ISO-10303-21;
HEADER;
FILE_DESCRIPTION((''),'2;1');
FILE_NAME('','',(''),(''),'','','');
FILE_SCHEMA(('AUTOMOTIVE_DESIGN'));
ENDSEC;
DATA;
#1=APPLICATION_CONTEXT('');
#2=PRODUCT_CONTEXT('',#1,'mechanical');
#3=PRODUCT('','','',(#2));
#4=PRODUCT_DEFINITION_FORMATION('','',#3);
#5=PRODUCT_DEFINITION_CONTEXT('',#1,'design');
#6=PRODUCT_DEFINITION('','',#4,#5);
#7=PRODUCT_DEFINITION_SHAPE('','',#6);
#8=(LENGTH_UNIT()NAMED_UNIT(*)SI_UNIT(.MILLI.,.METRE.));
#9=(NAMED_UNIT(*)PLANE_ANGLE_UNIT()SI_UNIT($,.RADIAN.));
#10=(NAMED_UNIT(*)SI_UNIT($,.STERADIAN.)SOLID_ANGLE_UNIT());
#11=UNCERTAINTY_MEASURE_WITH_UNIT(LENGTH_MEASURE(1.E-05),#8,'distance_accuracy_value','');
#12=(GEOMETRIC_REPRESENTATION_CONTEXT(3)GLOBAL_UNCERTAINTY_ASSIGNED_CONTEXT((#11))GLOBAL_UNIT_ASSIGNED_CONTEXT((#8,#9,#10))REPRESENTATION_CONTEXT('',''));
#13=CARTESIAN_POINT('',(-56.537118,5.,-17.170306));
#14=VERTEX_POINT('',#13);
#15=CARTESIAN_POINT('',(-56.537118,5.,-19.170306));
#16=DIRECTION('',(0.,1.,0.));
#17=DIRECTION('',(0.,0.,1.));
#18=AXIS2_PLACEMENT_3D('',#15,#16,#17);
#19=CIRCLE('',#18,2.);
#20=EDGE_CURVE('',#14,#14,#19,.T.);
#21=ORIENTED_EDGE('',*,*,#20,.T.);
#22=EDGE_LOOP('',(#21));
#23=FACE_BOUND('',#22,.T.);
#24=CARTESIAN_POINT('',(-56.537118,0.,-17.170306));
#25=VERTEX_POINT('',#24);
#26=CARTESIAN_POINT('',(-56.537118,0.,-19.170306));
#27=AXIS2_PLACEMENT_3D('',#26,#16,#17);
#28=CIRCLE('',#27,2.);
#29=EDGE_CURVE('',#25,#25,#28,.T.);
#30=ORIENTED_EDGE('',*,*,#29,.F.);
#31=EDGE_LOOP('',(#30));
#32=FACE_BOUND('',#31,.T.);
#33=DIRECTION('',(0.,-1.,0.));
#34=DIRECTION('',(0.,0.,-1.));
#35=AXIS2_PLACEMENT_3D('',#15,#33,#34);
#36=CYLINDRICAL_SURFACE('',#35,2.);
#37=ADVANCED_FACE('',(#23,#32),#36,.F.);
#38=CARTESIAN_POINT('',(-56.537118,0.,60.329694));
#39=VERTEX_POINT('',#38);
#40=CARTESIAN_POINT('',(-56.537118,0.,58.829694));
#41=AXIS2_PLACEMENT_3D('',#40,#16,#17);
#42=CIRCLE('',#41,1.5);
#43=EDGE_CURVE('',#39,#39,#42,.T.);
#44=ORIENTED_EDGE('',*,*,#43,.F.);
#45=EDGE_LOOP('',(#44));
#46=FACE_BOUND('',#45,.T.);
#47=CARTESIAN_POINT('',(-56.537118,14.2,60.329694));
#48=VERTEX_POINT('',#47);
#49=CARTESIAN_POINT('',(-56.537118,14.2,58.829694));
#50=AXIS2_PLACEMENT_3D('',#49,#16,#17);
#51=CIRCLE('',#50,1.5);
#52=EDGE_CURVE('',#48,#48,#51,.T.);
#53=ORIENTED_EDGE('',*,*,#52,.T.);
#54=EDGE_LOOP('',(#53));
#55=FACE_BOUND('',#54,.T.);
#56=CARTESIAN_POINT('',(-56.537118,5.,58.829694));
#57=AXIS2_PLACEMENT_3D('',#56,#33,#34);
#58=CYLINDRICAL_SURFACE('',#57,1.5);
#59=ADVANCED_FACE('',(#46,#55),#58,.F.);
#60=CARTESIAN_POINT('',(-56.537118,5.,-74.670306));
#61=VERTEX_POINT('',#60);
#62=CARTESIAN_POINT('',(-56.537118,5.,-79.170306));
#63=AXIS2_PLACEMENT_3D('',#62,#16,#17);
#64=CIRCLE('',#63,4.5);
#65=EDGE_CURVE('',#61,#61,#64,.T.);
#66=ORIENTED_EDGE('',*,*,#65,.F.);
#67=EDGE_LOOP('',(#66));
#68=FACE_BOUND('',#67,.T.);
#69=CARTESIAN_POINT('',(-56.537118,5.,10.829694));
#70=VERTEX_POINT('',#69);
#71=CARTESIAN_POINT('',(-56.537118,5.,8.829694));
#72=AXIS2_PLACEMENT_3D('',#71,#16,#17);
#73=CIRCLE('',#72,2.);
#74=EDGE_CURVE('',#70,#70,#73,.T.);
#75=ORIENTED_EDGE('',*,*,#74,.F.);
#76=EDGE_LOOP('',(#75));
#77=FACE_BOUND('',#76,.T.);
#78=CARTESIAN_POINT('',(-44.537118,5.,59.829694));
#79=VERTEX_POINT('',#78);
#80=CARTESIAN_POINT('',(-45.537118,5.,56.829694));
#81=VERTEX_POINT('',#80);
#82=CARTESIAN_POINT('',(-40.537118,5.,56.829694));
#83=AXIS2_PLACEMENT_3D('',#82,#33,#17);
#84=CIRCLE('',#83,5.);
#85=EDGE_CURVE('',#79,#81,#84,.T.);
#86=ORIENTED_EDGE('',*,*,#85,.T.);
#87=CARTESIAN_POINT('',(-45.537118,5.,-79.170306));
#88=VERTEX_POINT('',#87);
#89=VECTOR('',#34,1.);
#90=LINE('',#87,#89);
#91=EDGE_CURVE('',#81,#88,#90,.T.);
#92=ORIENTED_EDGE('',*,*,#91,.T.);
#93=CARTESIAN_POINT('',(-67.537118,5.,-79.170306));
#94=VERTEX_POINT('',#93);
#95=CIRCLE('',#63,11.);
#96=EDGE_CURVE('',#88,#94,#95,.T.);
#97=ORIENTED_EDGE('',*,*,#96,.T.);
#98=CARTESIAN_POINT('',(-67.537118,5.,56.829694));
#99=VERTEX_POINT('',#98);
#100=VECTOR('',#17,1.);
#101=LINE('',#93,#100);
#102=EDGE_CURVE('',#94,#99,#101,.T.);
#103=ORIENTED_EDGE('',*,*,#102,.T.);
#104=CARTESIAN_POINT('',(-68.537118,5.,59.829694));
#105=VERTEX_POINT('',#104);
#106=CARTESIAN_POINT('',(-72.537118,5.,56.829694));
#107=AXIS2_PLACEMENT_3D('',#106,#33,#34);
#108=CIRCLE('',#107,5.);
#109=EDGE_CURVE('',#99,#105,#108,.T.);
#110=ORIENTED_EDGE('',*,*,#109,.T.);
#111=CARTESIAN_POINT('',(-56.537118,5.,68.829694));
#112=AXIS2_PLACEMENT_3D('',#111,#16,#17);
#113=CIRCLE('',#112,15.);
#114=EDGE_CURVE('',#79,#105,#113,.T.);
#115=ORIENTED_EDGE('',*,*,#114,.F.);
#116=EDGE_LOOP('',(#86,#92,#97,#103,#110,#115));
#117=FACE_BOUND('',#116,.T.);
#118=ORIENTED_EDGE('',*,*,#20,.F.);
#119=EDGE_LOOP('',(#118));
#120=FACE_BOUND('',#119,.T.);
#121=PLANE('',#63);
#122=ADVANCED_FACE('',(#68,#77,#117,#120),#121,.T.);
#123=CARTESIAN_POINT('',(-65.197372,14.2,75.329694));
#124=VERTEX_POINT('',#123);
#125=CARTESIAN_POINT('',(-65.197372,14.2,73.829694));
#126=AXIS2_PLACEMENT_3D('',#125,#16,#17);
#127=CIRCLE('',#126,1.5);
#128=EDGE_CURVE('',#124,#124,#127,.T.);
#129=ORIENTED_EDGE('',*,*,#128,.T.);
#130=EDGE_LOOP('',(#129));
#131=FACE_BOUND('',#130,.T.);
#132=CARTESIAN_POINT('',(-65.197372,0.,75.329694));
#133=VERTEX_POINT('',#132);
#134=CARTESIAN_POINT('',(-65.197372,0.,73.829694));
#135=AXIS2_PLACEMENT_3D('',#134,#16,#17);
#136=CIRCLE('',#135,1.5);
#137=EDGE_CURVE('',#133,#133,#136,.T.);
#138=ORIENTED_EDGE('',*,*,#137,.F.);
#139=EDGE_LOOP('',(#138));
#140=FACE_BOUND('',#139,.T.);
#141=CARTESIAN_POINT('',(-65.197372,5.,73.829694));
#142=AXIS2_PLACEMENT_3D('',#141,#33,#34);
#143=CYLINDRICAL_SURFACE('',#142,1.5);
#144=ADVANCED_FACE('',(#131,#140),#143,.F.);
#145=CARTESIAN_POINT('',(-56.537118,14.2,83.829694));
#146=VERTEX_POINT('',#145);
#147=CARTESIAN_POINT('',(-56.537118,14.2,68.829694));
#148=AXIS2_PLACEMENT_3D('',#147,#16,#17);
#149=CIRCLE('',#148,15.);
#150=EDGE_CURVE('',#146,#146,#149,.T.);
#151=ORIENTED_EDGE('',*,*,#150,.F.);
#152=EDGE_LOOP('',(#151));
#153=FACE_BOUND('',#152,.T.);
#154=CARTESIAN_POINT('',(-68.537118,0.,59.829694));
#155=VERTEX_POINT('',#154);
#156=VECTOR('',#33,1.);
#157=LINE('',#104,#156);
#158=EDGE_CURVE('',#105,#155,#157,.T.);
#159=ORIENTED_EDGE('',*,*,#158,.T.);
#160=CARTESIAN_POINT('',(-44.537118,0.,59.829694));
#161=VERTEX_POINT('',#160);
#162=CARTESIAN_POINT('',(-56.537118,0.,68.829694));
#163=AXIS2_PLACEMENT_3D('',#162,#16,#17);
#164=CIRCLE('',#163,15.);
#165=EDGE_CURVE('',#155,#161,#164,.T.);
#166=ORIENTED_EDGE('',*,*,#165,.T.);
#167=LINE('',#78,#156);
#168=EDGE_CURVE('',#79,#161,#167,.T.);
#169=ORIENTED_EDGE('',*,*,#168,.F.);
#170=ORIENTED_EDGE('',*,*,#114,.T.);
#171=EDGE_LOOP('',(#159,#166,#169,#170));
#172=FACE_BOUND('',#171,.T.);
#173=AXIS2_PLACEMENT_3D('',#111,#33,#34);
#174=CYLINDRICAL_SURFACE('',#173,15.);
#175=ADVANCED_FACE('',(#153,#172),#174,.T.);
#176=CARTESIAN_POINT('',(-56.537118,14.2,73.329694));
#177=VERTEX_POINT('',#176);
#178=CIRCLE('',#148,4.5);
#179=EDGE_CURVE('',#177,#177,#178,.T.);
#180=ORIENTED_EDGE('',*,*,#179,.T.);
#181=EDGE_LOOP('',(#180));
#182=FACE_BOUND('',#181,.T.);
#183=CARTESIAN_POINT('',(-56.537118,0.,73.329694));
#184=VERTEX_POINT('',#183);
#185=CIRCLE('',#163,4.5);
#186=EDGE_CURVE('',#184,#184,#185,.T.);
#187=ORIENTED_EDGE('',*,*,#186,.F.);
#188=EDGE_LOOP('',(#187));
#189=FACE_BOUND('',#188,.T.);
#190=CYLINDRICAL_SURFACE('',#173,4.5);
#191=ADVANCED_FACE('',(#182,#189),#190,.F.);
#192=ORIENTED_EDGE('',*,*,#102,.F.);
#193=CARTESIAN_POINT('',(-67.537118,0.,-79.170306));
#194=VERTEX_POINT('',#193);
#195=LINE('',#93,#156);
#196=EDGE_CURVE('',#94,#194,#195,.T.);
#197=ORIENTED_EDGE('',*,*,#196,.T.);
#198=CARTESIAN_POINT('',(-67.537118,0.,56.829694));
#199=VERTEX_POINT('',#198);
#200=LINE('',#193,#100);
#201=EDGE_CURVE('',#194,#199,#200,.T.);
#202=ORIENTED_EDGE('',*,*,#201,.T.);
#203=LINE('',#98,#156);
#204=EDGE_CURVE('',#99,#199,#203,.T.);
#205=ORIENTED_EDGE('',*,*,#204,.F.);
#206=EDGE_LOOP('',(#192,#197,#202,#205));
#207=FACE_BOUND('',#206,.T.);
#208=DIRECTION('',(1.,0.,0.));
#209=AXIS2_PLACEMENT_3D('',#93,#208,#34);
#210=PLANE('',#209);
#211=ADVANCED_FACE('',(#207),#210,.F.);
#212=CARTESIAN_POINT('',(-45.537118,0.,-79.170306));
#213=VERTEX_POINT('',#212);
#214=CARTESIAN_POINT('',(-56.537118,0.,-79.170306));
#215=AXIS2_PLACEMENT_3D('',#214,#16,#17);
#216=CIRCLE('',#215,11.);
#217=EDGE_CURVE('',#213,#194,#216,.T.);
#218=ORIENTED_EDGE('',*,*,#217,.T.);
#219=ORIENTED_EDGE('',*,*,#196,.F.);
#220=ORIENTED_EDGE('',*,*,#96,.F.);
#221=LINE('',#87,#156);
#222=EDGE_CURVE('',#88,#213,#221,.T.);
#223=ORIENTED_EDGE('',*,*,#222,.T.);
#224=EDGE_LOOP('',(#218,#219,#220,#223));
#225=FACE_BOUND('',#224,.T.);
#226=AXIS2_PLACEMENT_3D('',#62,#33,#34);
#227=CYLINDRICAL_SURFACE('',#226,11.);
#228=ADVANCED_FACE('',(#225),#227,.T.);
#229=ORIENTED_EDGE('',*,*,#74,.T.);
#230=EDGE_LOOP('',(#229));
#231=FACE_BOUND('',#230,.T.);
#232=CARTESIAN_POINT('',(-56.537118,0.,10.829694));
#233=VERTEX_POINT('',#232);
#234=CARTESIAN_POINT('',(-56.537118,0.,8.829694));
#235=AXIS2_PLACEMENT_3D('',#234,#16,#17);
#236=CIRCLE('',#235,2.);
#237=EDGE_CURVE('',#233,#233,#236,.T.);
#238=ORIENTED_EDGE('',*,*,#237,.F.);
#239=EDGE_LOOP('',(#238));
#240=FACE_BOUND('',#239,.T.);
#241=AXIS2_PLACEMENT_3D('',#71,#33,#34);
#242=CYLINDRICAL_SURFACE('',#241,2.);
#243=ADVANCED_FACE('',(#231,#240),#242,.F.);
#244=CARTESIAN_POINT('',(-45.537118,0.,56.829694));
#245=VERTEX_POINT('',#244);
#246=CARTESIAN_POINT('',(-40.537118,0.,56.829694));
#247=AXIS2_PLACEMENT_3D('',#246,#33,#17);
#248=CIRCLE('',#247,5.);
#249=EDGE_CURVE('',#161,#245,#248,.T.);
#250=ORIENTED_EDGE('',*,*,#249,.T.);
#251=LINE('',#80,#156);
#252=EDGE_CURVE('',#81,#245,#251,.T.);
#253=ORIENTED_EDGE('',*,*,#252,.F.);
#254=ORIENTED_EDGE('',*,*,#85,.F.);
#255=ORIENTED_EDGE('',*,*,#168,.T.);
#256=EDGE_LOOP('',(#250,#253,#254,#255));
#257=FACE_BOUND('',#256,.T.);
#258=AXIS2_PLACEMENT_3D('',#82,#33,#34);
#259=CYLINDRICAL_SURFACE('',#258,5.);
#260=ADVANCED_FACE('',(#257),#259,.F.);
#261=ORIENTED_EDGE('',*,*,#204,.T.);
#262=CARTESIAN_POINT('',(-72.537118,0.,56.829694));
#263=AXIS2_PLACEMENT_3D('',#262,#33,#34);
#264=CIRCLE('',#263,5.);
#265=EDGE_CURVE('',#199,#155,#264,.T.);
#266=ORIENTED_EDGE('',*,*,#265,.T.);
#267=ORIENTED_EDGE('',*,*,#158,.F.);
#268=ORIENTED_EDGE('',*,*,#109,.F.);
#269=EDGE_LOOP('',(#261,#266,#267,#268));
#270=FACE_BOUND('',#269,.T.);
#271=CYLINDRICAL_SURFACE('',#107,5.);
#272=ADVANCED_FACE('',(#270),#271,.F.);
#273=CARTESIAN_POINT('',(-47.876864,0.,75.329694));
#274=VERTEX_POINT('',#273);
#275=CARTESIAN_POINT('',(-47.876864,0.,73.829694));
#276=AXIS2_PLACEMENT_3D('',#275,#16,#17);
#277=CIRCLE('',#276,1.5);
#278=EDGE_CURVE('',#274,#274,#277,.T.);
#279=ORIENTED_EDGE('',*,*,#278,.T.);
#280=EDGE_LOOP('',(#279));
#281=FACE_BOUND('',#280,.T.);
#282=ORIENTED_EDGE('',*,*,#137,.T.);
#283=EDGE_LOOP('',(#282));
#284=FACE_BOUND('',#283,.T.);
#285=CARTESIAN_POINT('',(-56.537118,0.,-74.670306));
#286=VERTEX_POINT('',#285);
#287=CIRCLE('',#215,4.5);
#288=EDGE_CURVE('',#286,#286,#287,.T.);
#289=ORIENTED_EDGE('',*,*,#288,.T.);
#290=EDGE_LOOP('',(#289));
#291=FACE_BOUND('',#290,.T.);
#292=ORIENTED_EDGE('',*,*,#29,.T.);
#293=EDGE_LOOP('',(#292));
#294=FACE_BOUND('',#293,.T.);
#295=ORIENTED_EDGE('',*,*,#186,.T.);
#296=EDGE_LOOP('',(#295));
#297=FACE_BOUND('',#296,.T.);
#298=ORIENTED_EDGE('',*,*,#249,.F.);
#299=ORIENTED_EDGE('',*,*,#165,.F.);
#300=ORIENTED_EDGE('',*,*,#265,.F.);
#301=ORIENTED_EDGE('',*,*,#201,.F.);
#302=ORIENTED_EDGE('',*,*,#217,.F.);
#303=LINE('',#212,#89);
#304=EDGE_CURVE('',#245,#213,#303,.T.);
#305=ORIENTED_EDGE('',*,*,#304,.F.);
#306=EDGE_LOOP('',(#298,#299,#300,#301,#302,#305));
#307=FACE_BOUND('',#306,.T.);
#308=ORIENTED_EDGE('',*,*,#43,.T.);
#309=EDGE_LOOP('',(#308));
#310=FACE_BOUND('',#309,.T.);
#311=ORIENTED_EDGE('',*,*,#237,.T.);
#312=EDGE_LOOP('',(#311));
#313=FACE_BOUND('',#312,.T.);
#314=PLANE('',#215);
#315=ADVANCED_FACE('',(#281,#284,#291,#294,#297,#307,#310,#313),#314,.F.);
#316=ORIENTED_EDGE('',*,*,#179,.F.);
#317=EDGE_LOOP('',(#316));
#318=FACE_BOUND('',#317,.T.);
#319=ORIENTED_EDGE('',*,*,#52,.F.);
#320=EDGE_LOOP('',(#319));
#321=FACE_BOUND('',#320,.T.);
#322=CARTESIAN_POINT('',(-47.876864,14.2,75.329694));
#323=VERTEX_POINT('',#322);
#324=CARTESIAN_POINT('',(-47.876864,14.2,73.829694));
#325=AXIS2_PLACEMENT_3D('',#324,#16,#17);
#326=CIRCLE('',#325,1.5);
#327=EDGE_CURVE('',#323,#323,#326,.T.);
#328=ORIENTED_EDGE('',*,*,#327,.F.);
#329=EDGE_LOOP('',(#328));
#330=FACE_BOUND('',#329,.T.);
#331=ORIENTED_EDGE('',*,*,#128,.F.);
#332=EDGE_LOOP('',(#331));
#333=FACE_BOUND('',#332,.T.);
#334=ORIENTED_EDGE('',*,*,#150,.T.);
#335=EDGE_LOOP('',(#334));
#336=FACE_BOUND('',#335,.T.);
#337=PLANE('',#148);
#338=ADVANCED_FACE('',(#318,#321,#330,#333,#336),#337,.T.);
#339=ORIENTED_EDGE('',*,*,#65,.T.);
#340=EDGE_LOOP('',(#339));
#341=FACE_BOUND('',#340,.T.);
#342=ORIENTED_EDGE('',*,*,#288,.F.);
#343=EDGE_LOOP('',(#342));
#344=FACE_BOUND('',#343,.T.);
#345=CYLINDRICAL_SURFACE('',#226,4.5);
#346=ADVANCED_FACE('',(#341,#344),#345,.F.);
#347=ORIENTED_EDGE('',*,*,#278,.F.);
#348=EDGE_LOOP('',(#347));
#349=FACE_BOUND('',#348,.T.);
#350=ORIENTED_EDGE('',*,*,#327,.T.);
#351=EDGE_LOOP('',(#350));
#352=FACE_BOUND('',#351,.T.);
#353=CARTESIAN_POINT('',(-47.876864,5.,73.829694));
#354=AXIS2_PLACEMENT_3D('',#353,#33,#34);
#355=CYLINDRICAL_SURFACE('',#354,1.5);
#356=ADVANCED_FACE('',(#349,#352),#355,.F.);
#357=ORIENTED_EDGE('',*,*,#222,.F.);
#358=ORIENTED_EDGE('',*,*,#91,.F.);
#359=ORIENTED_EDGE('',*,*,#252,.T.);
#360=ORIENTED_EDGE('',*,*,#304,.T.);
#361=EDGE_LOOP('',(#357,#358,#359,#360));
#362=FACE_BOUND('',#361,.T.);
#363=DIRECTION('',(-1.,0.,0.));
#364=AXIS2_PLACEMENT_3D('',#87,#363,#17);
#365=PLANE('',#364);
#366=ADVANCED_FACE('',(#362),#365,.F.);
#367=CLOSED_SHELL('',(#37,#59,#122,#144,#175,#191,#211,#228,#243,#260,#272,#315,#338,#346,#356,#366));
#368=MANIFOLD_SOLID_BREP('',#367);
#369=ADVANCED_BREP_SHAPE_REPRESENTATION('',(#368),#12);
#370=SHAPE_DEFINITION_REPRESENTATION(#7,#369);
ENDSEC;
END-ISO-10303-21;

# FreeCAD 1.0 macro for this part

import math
import FreeCAD as App
import Part
import Sketcher

V = App.Vector
Q = App.Units.Quantity

doc = App.newDocument("Part")
body = doc.addObject("PartDesign::Body", "Body")

sketch1 = doc.addObject("Sketcher::SketchObject", "Sketch")
body.addObject(sketch1)
sketch1.AttachmentSupport = (doc.XZ_Plane, [""])
sketch1.MapMode = "FlatFace"
sketch1.addGeometry(Part.LineSegment(V(-67.537118, -79.170306, 0), V(-67.537118, 56.829694, 0)), False)
sketch1.addGeometry(Part.ArcOfCircle(Part.Circle(V(-72.537118, 56.829694, 0), V(0, 0, 1), 5), math.radians(0), math.radians(36.869898)), False)
sketch1.addGeometry(Part.ArcOfCircle(Part.Circle(V(-56.537118, 68.829694, 0), V(0, 0, 1), 15), math.radians(-36.869898), math.radians(216.869898)), False)
sketch1.addGeometry(Part.ArcOfCircle(Part.Circle(V(-40.537118, 56.829694, 0), V(0, 0, 1), 5), math.radians(143.130102), math.radians(180)), False)
sketch1.addGeometry(Part.LineSegment(V(-45.537118, 56.829694, 0), V(-45.537118, -79.170306, 0)), False)
sketch1.addGeometry(Part.ArcOfCircle(Part.Circle(V(-56.537118, -79.170306, 0), V(0, 0, 1), 11), math.radians(180), math.radians(360)), False)
sketch1.addGeometry(Part.Circle(V(-65.197372, 73.829694, 0), V(0, 0, 1), 1.5), False)
sketch1.addGeometry(Part.Circle(V(-56.537118, 68.829694, 0), V(0, 0, 1), 4.5), False)
sketch1.addGeometry(Part.Circle(V(-56.537118, 58.829694, 0), V(0, 0, 1), 1.5), False)
sketch1.addGeometry(Part.Circle(V(-47.876864, 73.829694, 0), V(0, 0, 1), 1.5), False)
sketch1.addGeometry(Part.Circle(V(-56.537118, 8.829694, 0), V(0, 0, 1), 2), False)
sketch1.addGeometry(Part.Circle(V(-56.537118, -19.170306, 0), V(0, 0, 1), 2), False)
sketch1.addGeometry(Part.Circle(V(-56.537118, -79.170306, 0), V(0, 0, 1), 4.5), False)
sketch1.addConstraint(Sketcher.Constraint("Tangent", 0, 2, 1, 1))
sketch1.addConstraint(Sketcher.Constraint("Tangent", 1, 2, 2, 2))
sketch1.addConstraint(Sketcher.Constraint("Tangent", 2, 1, 3, 1))
sketch1.addConstraint(Sketcher.Constraint("Tangent", 3, 2, 4, 1))
sketch1.addConstraint(Sketcher.Constraint("Tangent", 4, 2, 5, 2))
sketch1.addConstraint(Sketcher.Constraint("Tangent", 5, 1, 0, 1))
sketch1.addConstraint(Sketcher.Constraint("Vertical", 0))
sketch1.addConstraint(Sketcher.Constraint("Vertical", 4))
sketch1.addConstraint(Sketcher.Constraint("Coincident", 7, 3, 2, 3))
sketch1.addConstraint(Sketcher.Constraint("Coincident", 12, 3, 5, 3))
sketch1.addConstraint(Sketcher.Constraint("Equal", 1, 3))
sketch1.addConstraint(Sketcher.Constraint("Equal", 6, 8))
sketch1.addConstraint(Sketcher.Constraint("Equal", 8, 9))
sketch1.addConstraint(Sketcher.Constraint("Equal", 10, 11))
sketch1.addConstraint(Sketcher.Constraint("Equal", 7, 12))
sketch1.addConstraint(Sketcher.Constraint("Horizontal", 1, 3, 3, 3))
sketch1.addConstraint(Sketcher.Constraint("Horizontal", 6, 3, 9, 3))
sketch1.addConstraint(Sketcher.Constraint("Vertical", 7, 3, 8, 3))
sketch1.addConstraint(Sketcher.Constraint("Vertical", 8, 3, 10, 3))
sketch1.addConstraint(Sketcher.Constraint("Vertical", 10, 3, 11, 3))
sketch1.addConstraint(Sketcher.Constraint("Diameter", 6, Q("3 mm")))
sketch1.addConstraint(Sketcher.Constraint("Diameter", 7, Q("9 mm")))
sketch1.addConstraint(Sketcher.Constraint("Diameter", 10, Q("4 mm")))
sketch1.addConstraint(Sketcher.Constraint("Radius", 1, Q("5 mm")))
sketch1.addConstraint(Sketcher.Constraint("Radius", 2, Q("15 mm")))
sketch1.addConstraint(Sketcher.Constraint("Radius", 5, Q("11 mm")))
sketch1.addConstraint(Sketcher.Constraint("DistanceY", 0, 1, 0, 2, Q("136 mm")))
sketch1.addConstraint(Sketcher.Constraint("DistanceY", 2, 3, 6, 3, Q("5 mm")))
sketch1.addConstraint(Sketcher.Constraint("DistanceY", 8, 3, 2, 3, Q("10 mm")))
sketch1.addConstraint(Sketcher.Constraint("DistanceY", 10, 3, 8, 3, Q("50 mm")))
sketch1.addConstraint(Sketcher.Constraint("DistanceY", 11, 3, 10, 3, Q("28 mm")))
sketch1.addConstraint(Sketcher.Constraint("DistanceX", 6, 3, -1, 1, Q("65.197372 mm")))
sketch1.addConstraint(Sketcher.Constraint("DistanceX", 6, 3, 9, 3, Q("17.320508 mm")))
sketch1.addConstraint(Sketcher.Constraint("DistanceX", 1, 3, -1, 1, Q("72.537118 mm")))
sketch1.addConstraint(Sketcher.Constraint("DistanceY", -1, 1, 1, 3, Q("56.829694 mm")))
pad1 = doc.addObject("PartDesign::Pad", "Pad")
body.addObject(pad1)
pad1.Profile = sketch1
pad1.Length = 5
pad1.Reversed = True

sketch2 = doc.addObject("Sketcher::SketchObject", "Sketch001")
body.addObject(sketch2)
sketch2.AttachmentSupport = (doc.XZ_Plane, [""])
sketch2.MapMode = "FlatFace"
sketch2.AttachmentOffset = App.Placement(V(0, 0, -5), App.Rotation())
sketch2.addGeometry(Part.Circle(V(-56.537118, 68.829694, 0), V(0, 0, 1), 15), False)
sketch2.addGeometry(Part.Circle(V(-47.876864, 73.829694, 0), V(0, 0, 1), 1.5), False)
sketch2.addGeometry(Part.Circle(V(-65.197372, 73.829694, 0), V(0, 0, 1), 1.5), False)
sketch2.addGeometry(Part.Circle(V(-56.537118, 68.829694, 0), V(0, 0, 1), 4.5), False)
sketch2.addGeometry(Part.Circle(V(-56.537118, 58.829694, 0), V(0, 0, 1), 1.5), False)
sketch2.addConstraint(Sketcher.Constraint("Coincident", 3, 3, 0, 3))
sketch2.addConstraint(Sketcher.Constraint("Equal", 1, 2))
sketch2.addConstraint(Sketcher.Constraint("Equal", 2, 4))
sketch2.addConstraint(Sketcher.Constraint("Horizontal", 1, 3, 2, 3))
sketch2.addConstraint(Sketcher.Constraint("Vertical", 3, 3, 4, 3))
sketch2.addConstraint(Sketcher.Constraint("Diameter", 0, Q("30 mm")))
sketch2.addConstraint(Sketcher.Constraint("Diameter", 1, Q("3 mm")))
sketch2.addConstraint(Sketcher.Constraint("Diameter", 3, Q("9 mm")))
sketch2.addConstraint(Sketcher.Constraint("DistanceY", 0, 3, 1, 3, Q("5 mm")))
sketch2.addConstraint(Sketcher.Constraint("DistanceY", 4, 3, 0, 3, Q("10 mm")))
sketch2.addConstraint(Sketcher.Constraint("DistanceX", 2, 3, -1, 1, Q("65.197372 mm")))
sketch2.addConstraint(Sketcher.Constraint("DistanceX", 2, 3, 1, 3, Q("17.320508 mm")))
sketch2.addConstraint(Sketcher.Constraint("DistanceX", 0, 3, -1, 1, Q("56.537118 mm")))
sketch2.addConstraint(Sketcher.Constraint("DistanceY", -1, 1, 0, 3, Q("68.829694 mm")))
pad2 = doc.addObject("PartDesign::Pad", "Pad001")
body.addObject(pad2)
pad2.Profile = sketch2
pad2.Length = 9.2
pad2.Reversed = True

doc.recompute()
